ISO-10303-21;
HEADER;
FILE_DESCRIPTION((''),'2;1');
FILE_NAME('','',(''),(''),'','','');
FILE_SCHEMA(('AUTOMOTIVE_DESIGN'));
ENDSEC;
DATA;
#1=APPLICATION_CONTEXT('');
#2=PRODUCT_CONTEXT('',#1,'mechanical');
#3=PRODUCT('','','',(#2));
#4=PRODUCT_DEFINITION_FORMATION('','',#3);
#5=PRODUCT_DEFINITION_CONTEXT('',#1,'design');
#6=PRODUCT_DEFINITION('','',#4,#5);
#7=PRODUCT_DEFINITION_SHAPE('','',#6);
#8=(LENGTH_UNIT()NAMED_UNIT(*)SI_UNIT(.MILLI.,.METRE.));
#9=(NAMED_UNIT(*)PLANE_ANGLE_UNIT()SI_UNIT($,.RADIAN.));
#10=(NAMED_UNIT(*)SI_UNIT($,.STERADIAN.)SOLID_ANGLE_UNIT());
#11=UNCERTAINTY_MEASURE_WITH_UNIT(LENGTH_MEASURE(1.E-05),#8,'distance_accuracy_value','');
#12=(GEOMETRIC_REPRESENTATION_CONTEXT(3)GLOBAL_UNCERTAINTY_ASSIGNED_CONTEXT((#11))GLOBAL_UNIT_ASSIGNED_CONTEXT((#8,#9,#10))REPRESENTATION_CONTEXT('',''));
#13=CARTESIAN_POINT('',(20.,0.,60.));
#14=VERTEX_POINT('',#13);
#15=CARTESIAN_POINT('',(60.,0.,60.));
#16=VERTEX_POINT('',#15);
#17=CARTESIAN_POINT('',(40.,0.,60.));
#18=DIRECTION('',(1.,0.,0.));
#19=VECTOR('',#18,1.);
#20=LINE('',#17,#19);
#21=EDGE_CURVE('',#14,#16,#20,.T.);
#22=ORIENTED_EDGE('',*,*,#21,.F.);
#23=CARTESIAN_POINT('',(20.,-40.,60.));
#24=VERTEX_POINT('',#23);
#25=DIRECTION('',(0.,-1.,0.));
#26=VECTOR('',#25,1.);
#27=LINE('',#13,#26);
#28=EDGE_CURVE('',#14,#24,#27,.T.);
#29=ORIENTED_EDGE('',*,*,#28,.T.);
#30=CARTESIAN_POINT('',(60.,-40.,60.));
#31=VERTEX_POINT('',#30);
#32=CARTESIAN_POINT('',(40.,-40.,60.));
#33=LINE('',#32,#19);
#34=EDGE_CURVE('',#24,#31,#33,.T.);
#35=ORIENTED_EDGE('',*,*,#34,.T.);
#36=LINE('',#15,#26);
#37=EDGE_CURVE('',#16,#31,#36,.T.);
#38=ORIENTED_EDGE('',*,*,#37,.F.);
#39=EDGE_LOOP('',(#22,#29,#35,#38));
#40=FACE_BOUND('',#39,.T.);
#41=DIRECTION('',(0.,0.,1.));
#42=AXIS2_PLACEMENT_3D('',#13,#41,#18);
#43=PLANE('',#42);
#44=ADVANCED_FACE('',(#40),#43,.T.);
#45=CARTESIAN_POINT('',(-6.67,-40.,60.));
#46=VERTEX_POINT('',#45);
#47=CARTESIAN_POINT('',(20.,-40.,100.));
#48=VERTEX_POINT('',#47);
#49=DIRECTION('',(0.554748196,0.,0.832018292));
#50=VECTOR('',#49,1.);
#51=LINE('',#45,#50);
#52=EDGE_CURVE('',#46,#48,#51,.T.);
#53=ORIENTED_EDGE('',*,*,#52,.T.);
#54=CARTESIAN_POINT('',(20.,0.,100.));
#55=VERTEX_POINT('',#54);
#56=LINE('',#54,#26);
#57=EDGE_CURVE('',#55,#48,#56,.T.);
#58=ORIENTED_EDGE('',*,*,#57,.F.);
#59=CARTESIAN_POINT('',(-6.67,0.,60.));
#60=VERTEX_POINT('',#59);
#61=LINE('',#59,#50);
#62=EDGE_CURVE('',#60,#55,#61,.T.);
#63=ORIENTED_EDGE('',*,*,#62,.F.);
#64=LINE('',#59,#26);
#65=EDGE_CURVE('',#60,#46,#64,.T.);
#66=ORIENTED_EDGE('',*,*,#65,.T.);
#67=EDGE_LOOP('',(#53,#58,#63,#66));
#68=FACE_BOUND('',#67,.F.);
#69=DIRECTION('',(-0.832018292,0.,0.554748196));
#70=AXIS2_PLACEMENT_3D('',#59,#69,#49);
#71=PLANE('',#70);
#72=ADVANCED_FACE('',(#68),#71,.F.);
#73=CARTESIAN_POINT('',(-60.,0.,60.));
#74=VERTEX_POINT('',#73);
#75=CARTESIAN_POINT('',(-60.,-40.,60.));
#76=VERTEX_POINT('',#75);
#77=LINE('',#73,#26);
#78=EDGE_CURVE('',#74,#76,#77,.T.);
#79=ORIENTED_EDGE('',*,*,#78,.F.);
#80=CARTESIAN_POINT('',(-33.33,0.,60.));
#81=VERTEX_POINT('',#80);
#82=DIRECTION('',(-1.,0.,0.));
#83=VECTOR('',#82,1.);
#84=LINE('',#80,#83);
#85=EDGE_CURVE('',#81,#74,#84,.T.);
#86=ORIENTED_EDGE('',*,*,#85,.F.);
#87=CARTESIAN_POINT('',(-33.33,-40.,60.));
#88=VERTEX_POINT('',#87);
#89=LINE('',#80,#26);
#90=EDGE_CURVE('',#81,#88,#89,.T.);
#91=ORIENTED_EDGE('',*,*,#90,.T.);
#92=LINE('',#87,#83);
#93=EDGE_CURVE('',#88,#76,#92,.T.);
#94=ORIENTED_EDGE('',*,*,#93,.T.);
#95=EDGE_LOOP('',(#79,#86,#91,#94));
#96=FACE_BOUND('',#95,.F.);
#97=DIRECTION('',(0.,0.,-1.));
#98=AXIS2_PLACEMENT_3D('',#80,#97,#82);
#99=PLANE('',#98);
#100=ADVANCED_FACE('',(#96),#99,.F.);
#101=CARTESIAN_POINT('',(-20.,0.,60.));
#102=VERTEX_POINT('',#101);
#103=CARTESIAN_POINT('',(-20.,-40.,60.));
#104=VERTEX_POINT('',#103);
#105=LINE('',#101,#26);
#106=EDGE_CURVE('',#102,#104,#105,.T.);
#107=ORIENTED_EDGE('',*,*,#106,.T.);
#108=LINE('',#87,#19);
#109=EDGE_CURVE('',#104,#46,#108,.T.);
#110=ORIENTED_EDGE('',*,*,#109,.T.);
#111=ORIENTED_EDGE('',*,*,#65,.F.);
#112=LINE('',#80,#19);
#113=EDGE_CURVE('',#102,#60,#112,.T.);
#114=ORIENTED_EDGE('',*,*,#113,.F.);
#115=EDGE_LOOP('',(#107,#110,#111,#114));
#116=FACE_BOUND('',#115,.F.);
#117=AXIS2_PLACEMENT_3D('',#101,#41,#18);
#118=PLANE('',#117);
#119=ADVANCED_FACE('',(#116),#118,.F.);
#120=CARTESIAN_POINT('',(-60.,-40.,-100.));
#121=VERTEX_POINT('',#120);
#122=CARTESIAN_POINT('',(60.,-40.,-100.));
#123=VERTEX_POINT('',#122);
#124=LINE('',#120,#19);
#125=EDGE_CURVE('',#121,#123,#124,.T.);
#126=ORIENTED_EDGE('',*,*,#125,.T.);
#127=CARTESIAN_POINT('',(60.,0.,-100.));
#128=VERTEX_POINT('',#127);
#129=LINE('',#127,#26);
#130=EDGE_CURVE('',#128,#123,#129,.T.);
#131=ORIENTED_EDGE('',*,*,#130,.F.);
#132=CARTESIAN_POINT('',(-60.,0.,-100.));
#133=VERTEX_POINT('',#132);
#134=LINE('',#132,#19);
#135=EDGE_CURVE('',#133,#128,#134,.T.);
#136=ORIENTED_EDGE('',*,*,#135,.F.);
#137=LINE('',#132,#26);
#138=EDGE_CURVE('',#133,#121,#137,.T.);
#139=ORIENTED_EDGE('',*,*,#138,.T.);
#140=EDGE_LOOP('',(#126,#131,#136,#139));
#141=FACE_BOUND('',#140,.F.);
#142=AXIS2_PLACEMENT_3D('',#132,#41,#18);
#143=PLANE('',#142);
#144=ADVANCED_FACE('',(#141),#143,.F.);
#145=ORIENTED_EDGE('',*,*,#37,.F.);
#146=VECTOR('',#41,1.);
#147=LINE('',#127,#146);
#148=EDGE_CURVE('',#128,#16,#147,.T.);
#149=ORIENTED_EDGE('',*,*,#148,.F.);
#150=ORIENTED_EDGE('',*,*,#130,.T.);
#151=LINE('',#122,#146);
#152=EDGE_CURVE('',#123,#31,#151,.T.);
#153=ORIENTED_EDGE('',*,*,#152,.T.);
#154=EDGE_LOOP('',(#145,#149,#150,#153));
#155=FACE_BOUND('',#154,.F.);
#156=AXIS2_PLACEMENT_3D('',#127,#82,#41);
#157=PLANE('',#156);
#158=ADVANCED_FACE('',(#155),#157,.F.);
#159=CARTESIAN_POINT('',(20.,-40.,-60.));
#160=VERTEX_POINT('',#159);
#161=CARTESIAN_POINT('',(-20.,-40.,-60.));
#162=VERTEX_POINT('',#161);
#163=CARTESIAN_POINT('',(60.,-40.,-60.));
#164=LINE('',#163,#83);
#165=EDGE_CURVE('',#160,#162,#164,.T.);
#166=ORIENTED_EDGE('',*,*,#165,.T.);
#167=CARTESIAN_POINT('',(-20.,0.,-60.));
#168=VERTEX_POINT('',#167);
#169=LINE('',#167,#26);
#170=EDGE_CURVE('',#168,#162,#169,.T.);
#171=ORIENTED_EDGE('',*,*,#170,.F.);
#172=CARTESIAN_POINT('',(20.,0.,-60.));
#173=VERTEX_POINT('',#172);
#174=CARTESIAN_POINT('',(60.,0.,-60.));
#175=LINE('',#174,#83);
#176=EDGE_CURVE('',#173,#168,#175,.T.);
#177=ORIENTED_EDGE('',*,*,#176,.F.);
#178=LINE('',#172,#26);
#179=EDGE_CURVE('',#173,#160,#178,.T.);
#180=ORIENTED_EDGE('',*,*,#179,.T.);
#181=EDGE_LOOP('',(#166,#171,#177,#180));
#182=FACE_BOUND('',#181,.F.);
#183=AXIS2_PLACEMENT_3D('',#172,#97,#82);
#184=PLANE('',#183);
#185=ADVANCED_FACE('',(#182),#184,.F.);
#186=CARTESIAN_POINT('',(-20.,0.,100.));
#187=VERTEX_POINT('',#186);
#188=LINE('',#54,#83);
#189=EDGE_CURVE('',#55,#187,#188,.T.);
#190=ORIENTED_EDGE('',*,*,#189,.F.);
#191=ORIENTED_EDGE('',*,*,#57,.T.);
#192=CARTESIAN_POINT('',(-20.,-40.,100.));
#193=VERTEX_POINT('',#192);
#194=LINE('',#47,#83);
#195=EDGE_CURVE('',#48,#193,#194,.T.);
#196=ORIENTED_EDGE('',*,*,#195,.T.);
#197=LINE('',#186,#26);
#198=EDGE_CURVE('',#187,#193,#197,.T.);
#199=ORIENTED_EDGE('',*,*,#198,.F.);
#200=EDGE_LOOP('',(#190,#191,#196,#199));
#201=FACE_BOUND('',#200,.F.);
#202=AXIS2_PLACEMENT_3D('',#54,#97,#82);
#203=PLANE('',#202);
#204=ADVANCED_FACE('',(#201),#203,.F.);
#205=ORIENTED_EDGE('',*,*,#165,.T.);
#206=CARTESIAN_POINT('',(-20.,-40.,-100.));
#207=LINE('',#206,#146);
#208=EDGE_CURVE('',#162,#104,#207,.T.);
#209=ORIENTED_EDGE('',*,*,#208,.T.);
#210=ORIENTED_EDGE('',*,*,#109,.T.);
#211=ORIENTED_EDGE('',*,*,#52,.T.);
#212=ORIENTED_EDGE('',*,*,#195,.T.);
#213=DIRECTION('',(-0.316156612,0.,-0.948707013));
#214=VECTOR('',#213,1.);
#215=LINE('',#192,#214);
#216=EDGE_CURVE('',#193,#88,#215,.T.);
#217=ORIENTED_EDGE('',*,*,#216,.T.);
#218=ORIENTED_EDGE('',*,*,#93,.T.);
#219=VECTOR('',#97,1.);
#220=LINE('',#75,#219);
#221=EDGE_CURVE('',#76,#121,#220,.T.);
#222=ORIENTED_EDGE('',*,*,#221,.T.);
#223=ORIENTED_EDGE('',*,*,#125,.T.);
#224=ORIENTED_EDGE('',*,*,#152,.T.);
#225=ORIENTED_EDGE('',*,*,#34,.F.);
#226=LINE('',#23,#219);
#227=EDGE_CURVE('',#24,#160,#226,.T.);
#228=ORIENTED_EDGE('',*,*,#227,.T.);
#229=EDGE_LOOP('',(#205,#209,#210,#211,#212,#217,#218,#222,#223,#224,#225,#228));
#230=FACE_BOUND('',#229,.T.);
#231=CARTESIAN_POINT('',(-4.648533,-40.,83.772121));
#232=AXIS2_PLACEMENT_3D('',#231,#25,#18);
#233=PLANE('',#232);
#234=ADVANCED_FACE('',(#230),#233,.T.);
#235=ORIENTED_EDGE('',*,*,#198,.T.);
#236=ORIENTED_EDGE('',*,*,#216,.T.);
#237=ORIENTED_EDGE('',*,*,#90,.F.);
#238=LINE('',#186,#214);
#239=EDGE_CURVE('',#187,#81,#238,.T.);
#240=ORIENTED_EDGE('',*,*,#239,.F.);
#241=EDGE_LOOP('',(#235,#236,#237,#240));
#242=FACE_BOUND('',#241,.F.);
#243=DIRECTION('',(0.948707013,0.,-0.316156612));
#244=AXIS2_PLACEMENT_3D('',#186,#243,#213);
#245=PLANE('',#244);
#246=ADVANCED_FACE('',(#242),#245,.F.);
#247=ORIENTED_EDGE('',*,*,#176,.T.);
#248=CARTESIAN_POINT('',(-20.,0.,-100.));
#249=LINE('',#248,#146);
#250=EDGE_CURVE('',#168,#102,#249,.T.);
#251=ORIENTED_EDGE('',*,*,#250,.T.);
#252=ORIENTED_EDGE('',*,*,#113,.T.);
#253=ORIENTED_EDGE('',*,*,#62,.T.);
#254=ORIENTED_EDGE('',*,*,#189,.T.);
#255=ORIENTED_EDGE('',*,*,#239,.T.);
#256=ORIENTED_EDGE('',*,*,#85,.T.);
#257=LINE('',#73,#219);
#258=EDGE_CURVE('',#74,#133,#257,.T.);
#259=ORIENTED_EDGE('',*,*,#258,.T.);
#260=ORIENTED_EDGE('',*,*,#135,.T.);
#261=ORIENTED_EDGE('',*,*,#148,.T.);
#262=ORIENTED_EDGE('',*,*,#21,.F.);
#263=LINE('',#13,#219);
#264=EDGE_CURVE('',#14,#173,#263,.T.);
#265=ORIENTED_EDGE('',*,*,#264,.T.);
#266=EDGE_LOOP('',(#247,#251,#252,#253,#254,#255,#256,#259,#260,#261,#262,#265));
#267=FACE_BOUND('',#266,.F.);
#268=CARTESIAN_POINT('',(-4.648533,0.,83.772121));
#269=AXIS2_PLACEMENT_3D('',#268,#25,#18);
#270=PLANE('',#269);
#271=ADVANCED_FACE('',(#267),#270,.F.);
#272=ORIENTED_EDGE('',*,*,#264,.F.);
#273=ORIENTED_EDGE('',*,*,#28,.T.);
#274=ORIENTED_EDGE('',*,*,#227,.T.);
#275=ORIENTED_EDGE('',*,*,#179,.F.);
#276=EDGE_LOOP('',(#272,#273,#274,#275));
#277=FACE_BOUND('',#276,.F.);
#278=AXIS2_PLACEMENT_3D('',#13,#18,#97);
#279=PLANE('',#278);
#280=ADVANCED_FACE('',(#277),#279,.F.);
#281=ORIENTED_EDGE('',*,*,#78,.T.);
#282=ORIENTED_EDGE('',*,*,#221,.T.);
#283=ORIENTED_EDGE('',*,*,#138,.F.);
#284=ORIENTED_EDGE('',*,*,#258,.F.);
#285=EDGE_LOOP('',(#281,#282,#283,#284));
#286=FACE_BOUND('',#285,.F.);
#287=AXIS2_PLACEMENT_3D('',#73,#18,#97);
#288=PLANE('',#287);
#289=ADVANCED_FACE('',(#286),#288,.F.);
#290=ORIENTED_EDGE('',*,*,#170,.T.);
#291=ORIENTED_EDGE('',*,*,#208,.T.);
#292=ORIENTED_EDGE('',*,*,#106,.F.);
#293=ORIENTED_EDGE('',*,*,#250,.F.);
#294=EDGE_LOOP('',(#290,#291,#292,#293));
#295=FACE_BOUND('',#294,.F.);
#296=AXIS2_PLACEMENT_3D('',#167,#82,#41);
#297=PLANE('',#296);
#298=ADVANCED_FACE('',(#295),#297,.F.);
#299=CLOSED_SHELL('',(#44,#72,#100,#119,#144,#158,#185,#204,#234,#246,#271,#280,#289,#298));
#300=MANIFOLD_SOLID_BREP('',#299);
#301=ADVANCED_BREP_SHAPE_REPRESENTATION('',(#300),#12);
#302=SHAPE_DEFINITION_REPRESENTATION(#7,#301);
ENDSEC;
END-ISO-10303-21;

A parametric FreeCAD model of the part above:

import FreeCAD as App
import Part
import Sketcher


def add_polygon(sketch, points):
    """Adds a closed chain of lines whose ends are joined by coincident constraints."""
    first, n = sketch.GeometryCount, len(points)
    for a, b in zip(points, points[1:] + points[:1]):
        sketch.addGeometry(Part.LineSegment(App.Vector(*a, 0), App.Vector(*b, 0)), False)
    for i in range(n):
        sketch.addConstraint(Sketcher.Constraint("Coincident", first + i, 2, first + (i + 1) % n, 1))

doc = App.newDocument("Part")
body = doc.addObject("PartDesign::Body", "Body")

# Sketch on XZ plane
sketch1 = body.newObject("Sketcher::SketchObject", "Sketch")
sketch1.AttachmentSupport = (doc.getObject("XZ_Plane"), [""])
sketch1.MapMode = "FlatFace"
add_polygon(sketch1, [(-7, 60), (20, 100), (-20, 100), (-33, 60), (-60, 60), (-60, -100), (60, -100), (60, 60), (20, 60), (20, -60), (-20, -60), (-20, 60)])  # lines 0-11
sketch1.addConstraint(Sketcher.Constraint("Horizontal", 1))
sketch1.addConstraint(Sketcher.Constraint("Horizontal", 3))
sketch1.addConstraint(Sketcher.Constraint("Vertical", 4))
sketch1.addConstraint(Sketcher.Constraint("Horizontal", 5))
sketch1.addConstraint(Sketcher.Constraint("Vertical", 6))
sketch1.addConstraint(Sketcher.Constraint("Horizontal", 7))
sketch1.addConstraint(Sketcher.Constraint("Vertical", 8))
sketch1.addConstraint(Sketcher.Constraint("Horizontal", 9))
sketch1.addConstraint(Sketcher.Constraint("Vertical", 10))
sketch1.addConstraint(Sketcher.Constraint("Horizontal", 11))
sketch1.addConstraint(Sketcher.Constraint("Symmetric", 7, 2, 9, 2, -1, 1))
sketch1.addConstraint(Sketcher.Constraint("Symmetric", 3, 2, 6, 2, -2))
sketch1.addConstraint(Sketcher.Constraint("Horizontal", 7, 2, 10, 2))
sketch1.addConstraint(Sketcher.Constraint("Vertical", 0, 2, 7, 2))
sketch1.addConstraint(Sketcher.Constraint("Vertical", 1, 2, 9, 2))
sketch1.addConstraint(Sketcher.Constraint("Equal", 1, 7))
sketch1.addConstraint(Sketcher.Constraint("Equal", 5, 8))
sketch1.addConstraint(Sketcher.Constraint("DistanceX", 1, 2, 1, 1, 40.0))
sketch1.addConstraint(Sketcher.Constraint("DistanceY", 4, 2, 4, 1, 160.0))
sketch1.addConstraint(Sketcher.Constraint("DistanceY", -1, 1, 0, 2, 100.0))
sketch1.addConstraint(Sketcher.Constraint("DistanceX", 3, 2, 3, 1, 26.67))
sketch1.addConstraint(Sketcher.Constraint("DistanceX", 11, 1, 11, 2, 13.33))
pad1 = body.newObject("PartDesign::Pad", "Pad")
pad1.Profile = sketch1
pad1.Length = 40

doc.recompute()
